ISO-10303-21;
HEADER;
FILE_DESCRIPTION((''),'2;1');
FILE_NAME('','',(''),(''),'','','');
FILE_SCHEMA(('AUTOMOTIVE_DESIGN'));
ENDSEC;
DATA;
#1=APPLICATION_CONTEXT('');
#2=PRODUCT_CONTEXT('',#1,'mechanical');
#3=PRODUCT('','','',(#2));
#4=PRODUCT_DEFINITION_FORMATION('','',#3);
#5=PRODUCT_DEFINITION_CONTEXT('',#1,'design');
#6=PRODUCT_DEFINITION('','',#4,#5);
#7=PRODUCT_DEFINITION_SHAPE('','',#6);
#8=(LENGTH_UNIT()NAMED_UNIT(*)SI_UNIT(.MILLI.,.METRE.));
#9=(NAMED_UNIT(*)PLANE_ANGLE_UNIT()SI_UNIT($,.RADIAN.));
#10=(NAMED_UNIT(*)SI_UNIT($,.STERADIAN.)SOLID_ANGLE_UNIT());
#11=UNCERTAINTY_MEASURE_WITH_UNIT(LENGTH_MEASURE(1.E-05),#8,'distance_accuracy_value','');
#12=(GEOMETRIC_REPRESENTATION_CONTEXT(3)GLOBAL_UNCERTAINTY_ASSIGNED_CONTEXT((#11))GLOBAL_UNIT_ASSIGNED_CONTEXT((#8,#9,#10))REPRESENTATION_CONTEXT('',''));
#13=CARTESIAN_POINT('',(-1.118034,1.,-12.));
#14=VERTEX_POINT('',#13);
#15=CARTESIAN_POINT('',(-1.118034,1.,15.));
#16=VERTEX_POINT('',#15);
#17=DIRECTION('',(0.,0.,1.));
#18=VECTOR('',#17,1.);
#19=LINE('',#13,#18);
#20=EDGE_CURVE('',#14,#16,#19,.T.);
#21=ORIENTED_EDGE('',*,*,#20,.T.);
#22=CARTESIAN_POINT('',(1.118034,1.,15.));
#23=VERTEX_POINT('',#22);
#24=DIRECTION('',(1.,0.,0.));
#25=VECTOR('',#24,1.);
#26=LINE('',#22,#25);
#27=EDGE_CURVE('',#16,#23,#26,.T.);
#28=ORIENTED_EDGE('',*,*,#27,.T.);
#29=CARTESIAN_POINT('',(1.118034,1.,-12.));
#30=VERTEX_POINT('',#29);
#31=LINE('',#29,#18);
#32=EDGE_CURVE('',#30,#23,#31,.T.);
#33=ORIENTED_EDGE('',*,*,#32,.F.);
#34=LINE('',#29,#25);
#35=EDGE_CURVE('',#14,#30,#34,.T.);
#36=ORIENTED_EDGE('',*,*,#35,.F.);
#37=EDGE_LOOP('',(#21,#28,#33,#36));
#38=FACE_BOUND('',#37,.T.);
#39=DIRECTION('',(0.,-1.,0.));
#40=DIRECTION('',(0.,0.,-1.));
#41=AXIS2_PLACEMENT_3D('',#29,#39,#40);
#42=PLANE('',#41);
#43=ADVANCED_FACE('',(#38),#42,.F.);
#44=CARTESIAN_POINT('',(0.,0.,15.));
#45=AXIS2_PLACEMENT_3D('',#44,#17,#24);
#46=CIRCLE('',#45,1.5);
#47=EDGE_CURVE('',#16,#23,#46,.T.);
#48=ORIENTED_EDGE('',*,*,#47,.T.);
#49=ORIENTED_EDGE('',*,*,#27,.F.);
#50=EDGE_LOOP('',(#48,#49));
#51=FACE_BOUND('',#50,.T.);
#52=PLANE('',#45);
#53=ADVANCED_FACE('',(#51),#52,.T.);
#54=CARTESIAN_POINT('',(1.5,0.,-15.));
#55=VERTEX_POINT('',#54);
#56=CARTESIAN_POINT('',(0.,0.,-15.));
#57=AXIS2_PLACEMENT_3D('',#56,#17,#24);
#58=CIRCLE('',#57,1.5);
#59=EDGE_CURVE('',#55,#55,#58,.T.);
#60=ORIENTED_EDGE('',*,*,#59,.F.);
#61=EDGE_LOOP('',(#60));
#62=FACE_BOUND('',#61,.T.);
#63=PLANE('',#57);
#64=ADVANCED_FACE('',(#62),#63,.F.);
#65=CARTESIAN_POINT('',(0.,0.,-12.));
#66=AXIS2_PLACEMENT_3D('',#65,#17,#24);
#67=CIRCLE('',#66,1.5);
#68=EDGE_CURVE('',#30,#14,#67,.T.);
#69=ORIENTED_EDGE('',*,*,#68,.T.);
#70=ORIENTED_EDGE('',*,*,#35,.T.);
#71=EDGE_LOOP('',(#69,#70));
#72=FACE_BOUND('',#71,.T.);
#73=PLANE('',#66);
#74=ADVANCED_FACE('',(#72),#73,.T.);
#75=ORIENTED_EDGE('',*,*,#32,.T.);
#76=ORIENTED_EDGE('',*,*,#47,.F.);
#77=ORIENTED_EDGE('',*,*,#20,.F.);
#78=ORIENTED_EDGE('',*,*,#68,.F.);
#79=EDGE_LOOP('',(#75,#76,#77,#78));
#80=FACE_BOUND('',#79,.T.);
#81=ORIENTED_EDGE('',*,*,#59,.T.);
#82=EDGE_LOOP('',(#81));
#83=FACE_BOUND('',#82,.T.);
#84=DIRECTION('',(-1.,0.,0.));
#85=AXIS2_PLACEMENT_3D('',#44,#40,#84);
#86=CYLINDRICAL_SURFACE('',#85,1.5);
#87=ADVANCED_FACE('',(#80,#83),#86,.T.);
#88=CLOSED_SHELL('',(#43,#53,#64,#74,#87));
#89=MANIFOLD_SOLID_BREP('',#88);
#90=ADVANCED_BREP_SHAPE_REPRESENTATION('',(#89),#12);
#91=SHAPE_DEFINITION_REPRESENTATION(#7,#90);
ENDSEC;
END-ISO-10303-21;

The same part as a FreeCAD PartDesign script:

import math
import FreeCAD as App
import Part
import Sketcher

V = App.Vector

doc = App.newDocument("Part")
params = doc.addObject("Spreadsheet::Sheet", "Params")
for row, (alias, value) in enumerate([
    ("sketch1_diameter", "3 mm"),
    ("pad1_length", "30 mm"),
    ("sketch2_radius", "1.5 mm"),
    ("pocket1_length", "27 mm"),
], start=1):
    params.set(f"A{row}", alias)
    params.set(f"B{row}", "=" + value)
    params.setAlias(f"B{row}", alias)

body = doc.addObject("PartDesign::Body", "Body")

# Sketch on XY plane
sketch1 = body.newObject("Sketcher::SketchObject", "Sketch")
sketch1.AttachmentSupport = (doc.getObject("XY_Plane"), [""])
sketch1.MapMode = "FlatFace"
sketch1.addGeometry(Part.Circle(V(0, 0, 0), V(0, 0, 1), 1.5), False)
sketch1.addConstraint([
    Sketcher.Constraint("Coincident", 0, 3, -1, 1),
    Sketcher.Constraint("Diameter", 0, 3.0),
])
sketch1.setExpression("Constraints[1]", "Params.sketch1_diameter")
pad1 = body.newObject("PartDesign::Pad", "Pad")
pad1.Profile = sketch1
pad1.setExpression("Length", "Params.pad1_length")
pad1.Midplane = True

# Sketch on XY plane
sketch2 = body.newObject("Sketcher::SketchObject", "Sketch001")
sketch2.AttachmentSupport = (doc.getObject("XY_Plane"), [""])
sketch2.MapMode = "FlatFace"
sketch2.AttachmentOffset = App.Placement(V(0, 0, 15), App.Rotation())
sketch2.addGeometry([
    Part.LineSegment(V(-1.1, 1, 0), V(1.1, 1, 0)),
    Part.ArcOfCircle(Part.Circle(V(0, 0, 0), V(0, 0, 1), 1.5), math.radians(42), math.radians(138)),
], False)
sketch2.addConstraint([
    Sketcher.Constraint("Coincident", 0, 1, 1, 2),
    Sketcher.Constraint("Coincident", 1, 1, 0, 2),
    Sketcher.Constraint("Horizontal", 0),
    Sketcher.Constraint("Coincident", 1, 3, -1, 1),
    Sketcher.Constraint("Radius", 1, 1.5),
    Sketcher.Constraint("DistanceY", -1, 1, 0, 1, 1.0),
])
sketch2.setExpression("Constraints[4]", "Params.sketch2_radius")
pocket1 = body.newObject("PartDesign::Pocket", "Pocket")
pocket1.Profile = sketch2
pocket1.setExpression("Length", "Params.pocket1_length")

doc.recompute()
